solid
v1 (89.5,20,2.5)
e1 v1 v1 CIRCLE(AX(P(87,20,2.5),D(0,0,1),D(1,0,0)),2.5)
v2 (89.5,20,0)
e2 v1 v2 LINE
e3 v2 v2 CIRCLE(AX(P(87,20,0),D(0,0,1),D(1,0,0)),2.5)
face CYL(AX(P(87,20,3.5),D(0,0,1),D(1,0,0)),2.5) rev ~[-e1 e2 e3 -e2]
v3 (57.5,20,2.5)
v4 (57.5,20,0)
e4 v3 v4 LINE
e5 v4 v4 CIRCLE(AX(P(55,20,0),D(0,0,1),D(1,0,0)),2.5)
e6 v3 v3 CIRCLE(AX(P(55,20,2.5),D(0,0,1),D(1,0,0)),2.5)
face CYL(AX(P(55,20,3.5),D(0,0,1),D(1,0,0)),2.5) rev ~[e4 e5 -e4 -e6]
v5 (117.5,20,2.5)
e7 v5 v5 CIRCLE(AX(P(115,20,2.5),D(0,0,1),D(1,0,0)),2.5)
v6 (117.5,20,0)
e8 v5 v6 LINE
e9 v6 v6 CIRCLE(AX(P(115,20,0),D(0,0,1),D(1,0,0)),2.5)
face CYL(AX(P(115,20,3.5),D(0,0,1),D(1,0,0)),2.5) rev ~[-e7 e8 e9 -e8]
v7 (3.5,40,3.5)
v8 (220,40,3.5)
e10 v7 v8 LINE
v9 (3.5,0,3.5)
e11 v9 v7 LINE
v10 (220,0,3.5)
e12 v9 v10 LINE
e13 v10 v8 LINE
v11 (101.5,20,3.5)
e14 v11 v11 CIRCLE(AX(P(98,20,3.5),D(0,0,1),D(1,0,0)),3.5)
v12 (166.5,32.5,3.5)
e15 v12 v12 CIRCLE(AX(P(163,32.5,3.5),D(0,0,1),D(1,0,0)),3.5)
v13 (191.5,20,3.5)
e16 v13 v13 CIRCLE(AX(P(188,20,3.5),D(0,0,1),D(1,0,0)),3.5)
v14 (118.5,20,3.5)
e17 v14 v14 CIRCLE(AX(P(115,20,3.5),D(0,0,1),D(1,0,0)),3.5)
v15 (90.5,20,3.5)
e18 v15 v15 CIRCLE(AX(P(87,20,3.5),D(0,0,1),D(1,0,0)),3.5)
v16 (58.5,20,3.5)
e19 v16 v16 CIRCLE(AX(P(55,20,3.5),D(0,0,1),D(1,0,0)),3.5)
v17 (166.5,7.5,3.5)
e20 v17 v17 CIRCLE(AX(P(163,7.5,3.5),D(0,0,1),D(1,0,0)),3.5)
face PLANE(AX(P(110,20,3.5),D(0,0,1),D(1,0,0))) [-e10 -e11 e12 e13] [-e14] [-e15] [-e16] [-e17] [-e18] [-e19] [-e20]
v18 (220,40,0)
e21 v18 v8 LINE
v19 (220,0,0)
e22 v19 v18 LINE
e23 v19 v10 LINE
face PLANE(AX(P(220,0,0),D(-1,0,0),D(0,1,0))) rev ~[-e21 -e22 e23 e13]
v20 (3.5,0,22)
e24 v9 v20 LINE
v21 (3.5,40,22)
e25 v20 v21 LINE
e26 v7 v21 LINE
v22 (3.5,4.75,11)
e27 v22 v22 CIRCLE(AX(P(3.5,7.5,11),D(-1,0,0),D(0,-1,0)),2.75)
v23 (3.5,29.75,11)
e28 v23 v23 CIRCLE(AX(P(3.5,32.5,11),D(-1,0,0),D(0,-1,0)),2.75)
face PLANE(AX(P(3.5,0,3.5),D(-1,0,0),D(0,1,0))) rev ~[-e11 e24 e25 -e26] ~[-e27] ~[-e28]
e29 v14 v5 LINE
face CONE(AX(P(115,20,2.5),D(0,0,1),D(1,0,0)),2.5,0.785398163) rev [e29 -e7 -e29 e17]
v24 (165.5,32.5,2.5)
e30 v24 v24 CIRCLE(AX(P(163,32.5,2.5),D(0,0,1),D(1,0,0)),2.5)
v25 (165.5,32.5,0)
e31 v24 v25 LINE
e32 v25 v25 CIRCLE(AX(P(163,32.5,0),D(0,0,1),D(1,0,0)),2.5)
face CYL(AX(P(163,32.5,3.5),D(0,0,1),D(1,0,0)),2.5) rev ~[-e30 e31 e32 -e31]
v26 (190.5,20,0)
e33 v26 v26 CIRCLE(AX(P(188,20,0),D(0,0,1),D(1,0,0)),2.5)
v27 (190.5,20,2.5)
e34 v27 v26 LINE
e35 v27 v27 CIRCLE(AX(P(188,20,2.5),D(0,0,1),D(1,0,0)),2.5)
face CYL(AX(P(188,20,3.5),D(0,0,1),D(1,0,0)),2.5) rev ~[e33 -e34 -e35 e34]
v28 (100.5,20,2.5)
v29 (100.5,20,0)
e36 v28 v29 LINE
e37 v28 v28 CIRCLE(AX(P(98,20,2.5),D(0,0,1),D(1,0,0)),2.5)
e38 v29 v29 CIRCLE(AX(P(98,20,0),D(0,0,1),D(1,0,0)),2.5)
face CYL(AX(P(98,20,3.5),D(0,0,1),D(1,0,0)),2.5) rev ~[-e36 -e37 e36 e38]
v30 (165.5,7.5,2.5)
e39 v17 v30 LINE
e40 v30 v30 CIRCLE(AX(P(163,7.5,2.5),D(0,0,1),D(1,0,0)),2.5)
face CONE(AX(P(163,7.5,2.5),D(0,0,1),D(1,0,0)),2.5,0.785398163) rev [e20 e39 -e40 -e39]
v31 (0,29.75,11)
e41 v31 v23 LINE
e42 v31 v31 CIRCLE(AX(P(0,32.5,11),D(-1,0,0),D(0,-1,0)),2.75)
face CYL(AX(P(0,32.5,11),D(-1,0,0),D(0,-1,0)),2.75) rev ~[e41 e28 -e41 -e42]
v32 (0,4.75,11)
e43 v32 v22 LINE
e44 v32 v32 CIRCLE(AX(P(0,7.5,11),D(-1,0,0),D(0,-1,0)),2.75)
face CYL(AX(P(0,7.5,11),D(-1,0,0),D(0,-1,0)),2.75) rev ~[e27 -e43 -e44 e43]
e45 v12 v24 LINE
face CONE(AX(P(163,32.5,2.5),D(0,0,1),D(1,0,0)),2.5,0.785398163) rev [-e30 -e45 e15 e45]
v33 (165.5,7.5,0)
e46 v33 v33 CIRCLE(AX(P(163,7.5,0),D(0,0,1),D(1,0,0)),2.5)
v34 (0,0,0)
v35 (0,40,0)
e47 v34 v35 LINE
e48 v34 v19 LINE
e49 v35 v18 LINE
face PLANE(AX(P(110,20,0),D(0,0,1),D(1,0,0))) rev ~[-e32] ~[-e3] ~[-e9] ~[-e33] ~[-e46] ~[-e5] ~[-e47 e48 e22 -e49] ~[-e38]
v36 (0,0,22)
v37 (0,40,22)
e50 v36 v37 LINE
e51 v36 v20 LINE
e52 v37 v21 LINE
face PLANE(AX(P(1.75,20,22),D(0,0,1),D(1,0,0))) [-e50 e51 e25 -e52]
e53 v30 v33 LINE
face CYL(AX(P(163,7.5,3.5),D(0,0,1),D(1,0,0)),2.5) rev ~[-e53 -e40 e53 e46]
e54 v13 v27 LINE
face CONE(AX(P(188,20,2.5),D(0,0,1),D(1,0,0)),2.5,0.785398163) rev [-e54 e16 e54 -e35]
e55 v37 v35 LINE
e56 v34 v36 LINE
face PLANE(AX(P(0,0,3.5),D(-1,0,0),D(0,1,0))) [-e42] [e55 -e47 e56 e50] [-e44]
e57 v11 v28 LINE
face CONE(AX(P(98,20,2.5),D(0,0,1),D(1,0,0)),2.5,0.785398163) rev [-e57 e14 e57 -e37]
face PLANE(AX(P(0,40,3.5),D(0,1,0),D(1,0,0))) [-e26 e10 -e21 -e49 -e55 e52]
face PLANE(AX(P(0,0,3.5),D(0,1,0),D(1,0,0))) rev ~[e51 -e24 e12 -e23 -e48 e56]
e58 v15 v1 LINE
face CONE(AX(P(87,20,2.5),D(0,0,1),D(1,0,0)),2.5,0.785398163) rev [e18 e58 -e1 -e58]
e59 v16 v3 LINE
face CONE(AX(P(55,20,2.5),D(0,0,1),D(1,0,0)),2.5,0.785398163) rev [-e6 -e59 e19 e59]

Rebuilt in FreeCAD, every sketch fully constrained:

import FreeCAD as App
import Part
import Sketcher
from FreeCAD import Vector
Q = App.Units.Quantity


def edges_at(feature, points):
    """Names of the edges that pass closest to the given points."""
    edges = feature.Shape.Edges
    near = lambda p: min(range(len(edges)), key=lambda i: edges[i].distToShape(Part.Vertex(*p))[0])
    return sorted({f"Edge{near(p) + 1}" for p in points})

doc = App.newDocument("Part")
body = doc.addObject("PartDesign::Body", "Body")

# Sketch on XY plane
sketch1 = doc.addObject("Sketcher::SketchObject", "Sketch")
body.addObject(sketch1)
sketch1.AttachmentSupport = (doc.XY_Plane, [""])
sketch1.MapMode = "FlatFace"
sketch1.addGeometry([
    Part.LineSegment(Vector(0, 40, 0), Vector(0, 0, 0)),
    Part.LineSegment(Vector(0, 0, 0), Vector(220, 0, 0)),
    Part.LineSegment(Vector(220, 0, 0), Vector(220, 40, 0)),
    Part.LineSegment(Vector(220, 40, 0), Vector(0, 40, 0)),
], False)
sketch1.addConstraint([
    Sketcher.Constraint("Coincident", 0, 2, 1, 1),
    Sketcher.Constraint("Coincident", 1, 2, 2, 1),
    Sketcher.Constraint("Coincident", 2, 2, 3, 1),
    Sketcher.Constraint("Coincident", 3, 2, 0, 1),
    Sketcher.Constraint("Vertical", 0),
    Sketcher.Constraint("Horizontal", 1),
    Sketcher.Constraint("Vertical", 2),
    Sketcher.Constraint("Horizontal", 3),
    Sketcher.Constraint("Coincident", 0, 2, -1, 1),
    Sketcher.Constraint("DistanceX", 1, 1, 1, 2, Q("220 mm")),
    Sketcher.Constraint("DistanceY", 0, 2, 0, 1, Q("40 mm")),
])
pad1 = doc.addObject("PartDesign::Pad", "Pad")
body.addObject(pad1)
pad1.Profile = sketch1
pad1.Length = 3.5

# Sketch on XY plane
sketch2 = doc.addObject("Sketcher::SketchObject", "Sketch001")
body.addObject(sketch2)
sketch2.AttachmentSupport = (doc.XY_Plane, [""])
sketch2.MapMode = "FlatFace"
sketch2.AttachmentOffset = App.Placement(Vector(0, 0, 3.5), App.Rotation())
sketch2.addGeometry([
    Part.Circle(Vector(55, 20, 0), Vector(0, 0, 1), 2.5),  # 0
    Part.Circle(Vector(87, 20, 0), Vector(0, 0, 1), 2.5),  # 1
    Part.Circle(Vector(98, 20, 0), Vector(0, 0, 1), 2.5),  # 2
    Part.Circle(Vector(115, 20, 0), Vector(0, 0, 1), 2.5),  # 3
    Part.Circle(Vector(188, 20, 0), Vector(0, 0, 1), 2.5),  # 4
    Part.Circle(Vector(163, 32.5, 0), Vector(0, 0, 1), 2.5),  # 5
    Part.Circle(Vector(163, 7.5, 0), Vector(0, 0, 1), 2.5),  # 6
], False)
sketch2.addConstraint([
    Sketcher.Constraint("Equal", 0, 1),
    Sketcher.Constraint("Equal", 1, 2),
    Sketcher.Constraint("Equal", 2, 3),
    Sketcher.Constraint("Equal", 3, 4),
    Sketcher.Constraint("Equal", 4, 5),
    Sketcher.Constraint("Equal", 5, 6),
    Sketcher.Constraint("Horizontal", 0, 3, 1, 3),
    Sketcher.Constraint("Horizontal", 1, 3, 2, 3),
    Sketcher.Constraint("Horizontal", 2, 3, 3, 3),
    Sketcher.Constraint("Horizontal", 3, 3, 4, 3),
    Sketcher.Constraint("Vertical", 5, 3, 6, 3),
    Sketcher.Constraint("Diameter", 0, Q("5 mm")),
    Sketcher.Constraint("DistanceX", -1, 1, 0, 3, Q("55 mm")),
    Sketcher.Constraint("DistanceY", -1, 1, 0, 3, Q("20 mm")),
    Sketcher.Constraint("DistanceX", -1, 1, 1, 3, Q("87 mm")),
    Sketcher.Constraint("DistanceX", -1, 1, 2, 3, Q("98 mm")),
    Sketcher.Constraint("DistanceX", -1, 1, 3, 3, Q("115 mm")),
    Sketcher.Constraint("DistanceX", -1, 1, 4, 3, Q("188 mm")),
    Sketcher.Constraint("DistanceX", -1, 1, 5, 3, Q("163 mm")),
    Sketcher.Constraint("DistanceY", 6, 3, 5, 3, Q("25 mm")),
    Sketcher.Constraint("DistanceY", -1, 1, 5, 3, Q("32.5 mm")),
])
pocket1 = doc.addObject("PartDesign::Pocket", "Pocket")
body.addObject(pocket1)
pocket1.Profile = sketch2
pocket1.Type = "ThroughAll"
doc.recompute()

chamfer = doc.addObject("PartDesign::Chamfer", "Chamfer")
body.addObject(chamfer)
chamfer.Base = (pocket1, edges_at(pocket1, [
    (52.5, 20, 3.5),
    (84.5, 20, 3.5),
    (95.5, 20, 3.5),
    (112.5, 20, 3.5),
    (160.5, 32.5, 3.5),
    (160.5, 7.5, 3.5),
    (185.5, 20, 3.5),
]))
chamfer.Size = 1

# Sketch on XY plane
sketch3 = doc.addObject("Sketcher::SketchObject", "Sketch002")
body.addObject(sketch3)
sketch3.AttachmentSupport = (doc.XY_Plane, [""])
sketch3.MapMode = "FlatFace"
sketch3.AttachmentOffset = App.Placement(Vector(0, 0, 3.5), App.Rotation())
sketch3.addGeometry([
    Part.LineSegment(Vector(0, 40, 0), Vector(0, 0, 0)),
    Part.LineSegment(Vector(0, 0, 0), Vector(3.5, 0, 0)),
    Part.LineSegment(Vector(3.5, 0, 0), Vector(3.5, 40, 0)),
    Part.LineSegment(Vector(3.5, 40, 0), Vector(0, 40, 0)),
], False)
sketch3.addConstraint([
    Sketcher.Constraint("Coincident", 0, 2, 1, 1),
    Sketcher.Constraint("Coincident", 1, 2, 2, 1),
    Sketcher.Constraint("Coincident", 2, 2, 3, 1),
    Sketcher.Constraint("Coincident", 3, 2, 0, 1),
    Sketcher.Constraint("Vertical", 0),
    Sketcher.Constraint("Horizontal", 1),
    Sketcher.Constraint("Vertical", 2),
    Sketcher.Constraint("Horizontal", 3),
    Sketcher.Constraint("Coincident", 0, 2, -1, 1),
    Sketcher.Constraint("DistanceY", 0, 2, 0, 1, Q("40 mm")),
    Sketcher.Constraint("DistanceX", 1, 1, 1, 2, Q("3.5 mm")),
])
pad2 = doc.addObject("PartDesign::Pad", "Pad001")
body.addObject(pad2)
pad2.Profile = sketch3
pad2.Length = 18.5

# Sketch on YZ plane
sketch4 = doc.addObject("Sketcher::SketchObject", "Sketch003")
body.addObject(sketch4)
sketch4.AttachmentSupport = (doc.YZ_Plane, [""])
sketch4.MapMode = "FlatFace"
sketch4.addGeometry([
    Part.Circle(Vector(32.5, 11, 0), Vector(0, 0, 1), 2.75),
    Part.Circle(Vector(7.5, 11, 0), Vector(0, 0, 1), 2.75),
], False)
sketch4.addConstraint([
    Sketcher.Constraint("Equal", 0, 1),
    Sketcher.Constraint("Horizontal", 0, 3, 1, 3),
    Sketcher.Constraint("Diameter", 0, Q("5.5 mm")),
    Sketcher.Constraint("DistanceY", -1, 1, 0, 3, Q("11 mm")),
    Sketcher.Constraint("DistanceX", 1, 3, 0, 3, Q("25 mm")),
    Sketcher.Constraint("DistanceX", -1, 1, 0, 3, Q("32.5 mm")),
])
pocket2 = doc.addObject("PartDesign::Pocket", "Pocket001")
body.addObject(pocket2)
pocket2.Profile = sketch4
pocket2.Type = "ThroughAll"
pocket2.Reversed = True

doc.recompute()
